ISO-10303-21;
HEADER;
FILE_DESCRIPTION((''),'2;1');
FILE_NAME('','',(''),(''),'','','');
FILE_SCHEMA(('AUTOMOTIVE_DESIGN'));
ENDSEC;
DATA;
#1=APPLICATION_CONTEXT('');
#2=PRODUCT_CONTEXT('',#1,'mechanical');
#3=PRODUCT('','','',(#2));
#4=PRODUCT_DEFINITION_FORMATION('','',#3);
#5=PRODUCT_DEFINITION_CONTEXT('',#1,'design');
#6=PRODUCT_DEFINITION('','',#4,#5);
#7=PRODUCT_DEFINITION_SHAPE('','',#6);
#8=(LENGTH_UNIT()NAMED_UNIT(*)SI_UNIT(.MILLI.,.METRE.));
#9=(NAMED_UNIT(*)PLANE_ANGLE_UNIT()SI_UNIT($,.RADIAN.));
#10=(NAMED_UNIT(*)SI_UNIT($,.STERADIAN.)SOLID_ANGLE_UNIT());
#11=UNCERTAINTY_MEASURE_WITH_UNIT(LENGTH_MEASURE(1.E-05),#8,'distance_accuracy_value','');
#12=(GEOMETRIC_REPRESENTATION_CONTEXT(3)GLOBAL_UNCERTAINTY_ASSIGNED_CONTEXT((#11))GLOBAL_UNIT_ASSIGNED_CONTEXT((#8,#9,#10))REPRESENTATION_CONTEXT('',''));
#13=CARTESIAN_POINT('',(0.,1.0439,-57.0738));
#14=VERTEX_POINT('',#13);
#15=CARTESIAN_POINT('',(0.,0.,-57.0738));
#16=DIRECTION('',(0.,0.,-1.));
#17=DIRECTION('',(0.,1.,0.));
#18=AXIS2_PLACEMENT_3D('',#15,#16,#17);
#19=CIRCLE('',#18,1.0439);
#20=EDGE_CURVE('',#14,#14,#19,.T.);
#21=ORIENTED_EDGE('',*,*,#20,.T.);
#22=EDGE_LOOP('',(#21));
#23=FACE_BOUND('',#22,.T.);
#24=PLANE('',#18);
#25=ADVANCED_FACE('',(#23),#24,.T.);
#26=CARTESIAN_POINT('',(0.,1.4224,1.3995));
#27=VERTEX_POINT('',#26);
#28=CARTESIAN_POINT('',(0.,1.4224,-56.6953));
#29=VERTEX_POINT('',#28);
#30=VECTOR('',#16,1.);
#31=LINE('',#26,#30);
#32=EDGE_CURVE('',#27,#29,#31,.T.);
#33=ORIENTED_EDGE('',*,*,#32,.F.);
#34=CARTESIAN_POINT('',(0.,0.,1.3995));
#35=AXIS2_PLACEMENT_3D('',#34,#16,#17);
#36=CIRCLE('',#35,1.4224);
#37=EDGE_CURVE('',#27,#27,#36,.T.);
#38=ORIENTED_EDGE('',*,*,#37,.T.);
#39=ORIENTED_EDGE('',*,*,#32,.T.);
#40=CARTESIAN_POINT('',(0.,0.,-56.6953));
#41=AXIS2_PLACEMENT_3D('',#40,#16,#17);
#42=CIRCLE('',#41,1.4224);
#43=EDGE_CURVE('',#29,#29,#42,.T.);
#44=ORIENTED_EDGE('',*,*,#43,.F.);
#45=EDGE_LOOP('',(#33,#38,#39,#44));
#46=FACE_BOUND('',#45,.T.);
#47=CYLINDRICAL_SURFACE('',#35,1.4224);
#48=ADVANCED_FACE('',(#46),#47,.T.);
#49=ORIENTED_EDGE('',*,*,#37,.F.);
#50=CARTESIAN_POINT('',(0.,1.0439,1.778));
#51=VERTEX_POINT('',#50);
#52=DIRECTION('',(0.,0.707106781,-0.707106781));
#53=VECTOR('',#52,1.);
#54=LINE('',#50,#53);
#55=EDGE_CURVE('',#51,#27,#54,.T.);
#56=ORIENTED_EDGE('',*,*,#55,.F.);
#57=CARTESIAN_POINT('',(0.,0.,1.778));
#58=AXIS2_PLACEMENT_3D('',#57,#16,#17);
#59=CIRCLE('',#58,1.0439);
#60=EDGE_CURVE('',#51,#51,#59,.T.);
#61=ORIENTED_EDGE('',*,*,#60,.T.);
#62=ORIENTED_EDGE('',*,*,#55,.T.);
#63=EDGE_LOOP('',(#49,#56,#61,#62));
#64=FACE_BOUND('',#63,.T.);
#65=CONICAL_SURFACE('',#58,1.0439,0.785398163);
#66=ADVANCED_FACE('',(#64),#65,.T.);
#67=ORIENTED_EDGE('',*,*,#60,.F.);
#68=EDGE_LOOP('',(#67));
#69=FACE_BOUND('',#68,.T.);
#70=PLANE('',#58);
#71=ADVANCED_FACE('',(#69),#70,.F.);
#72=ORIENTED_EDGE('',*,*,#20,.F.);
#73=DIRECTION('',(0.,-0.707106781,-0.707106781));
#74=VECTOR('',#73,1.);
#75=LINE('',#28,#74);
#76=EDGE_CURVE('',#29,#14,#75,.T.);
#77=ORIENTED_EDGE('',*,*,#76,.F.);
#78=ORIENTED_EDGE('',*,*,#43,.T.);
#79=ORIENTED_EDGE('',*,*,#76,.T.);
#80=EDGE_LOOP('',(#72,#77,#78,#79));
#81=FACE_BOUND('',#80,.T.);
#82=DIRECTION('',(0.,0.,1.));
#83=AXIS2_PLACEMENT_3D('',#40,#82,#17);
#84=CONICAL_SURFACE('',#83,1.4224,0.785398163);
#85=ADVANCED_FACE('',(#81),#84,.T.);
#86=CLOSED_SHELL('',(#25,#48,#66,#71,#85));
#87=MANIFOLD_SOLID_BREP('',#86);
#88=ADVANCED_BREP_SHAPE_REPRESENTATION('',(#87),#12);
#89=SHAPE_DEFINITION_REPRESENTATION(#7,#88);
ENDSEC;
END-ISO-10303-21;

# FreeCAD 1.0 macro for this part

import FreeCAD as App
import Part
import Sketcher
from FreeCAD import Vector
Q = App.Units.Quantity


def add_polygon(sketch, points):
    """Adds a closed chain of lines whose ends are joined by coincident constraints."""
    first, n = sketch.GeometryCount, len(points)
    for a, b in zip(points, points[1:] + points[:1]):
        sketch.addGeometry(Part.LineSegment(App.Vector(*a, 0), App.Vector(*b, 0)), False)
    for i in range(n):
        sketch.addConstraint(Sketcher.Constraint("Coincident", first + i, 2, first + (i + 1) % n, 1))

doc = App.newDocument("Part")
params = doc.addObject("Spreadsheet::Sheet", "Params")
for row, (alias, value) in enumerate([
    ("sketch1_height", "2.317 in"),
    ("revolution_angle", "360 deg"),
], start=1):
    params.set(f"A{row}", alias)
    params.set(f"B{row}", "=" + value)
    params.setAlias(f"B{row}", alias)

body = doc.addObject("PartDesign::Body", "Body")

# Sketch on YZ plane
sketch1 = doc.addObject("Sketcher::SketchObject", "Sketch")
body.addObject(sketch1)
sketch1.AttachmentSupport = (doc.YZ_Plane, [""])
sketch1.MapMode = "FlatFace"
add_polygon(sketch1, [(0, 1.8), (0, -57.1), (1, -57.1), (1.4, -56.7), (1.4, 1.4), (1, 1.8)])  # lines 0-5
sketch1.addConstraint(Sketcher.Constraint("Vertical", 0))
sketch1.addConstraint(Sketcher.Constraint("Horizontal", 1))
sketch1.addConstraint(Sketcher.Constraint("Vertical", 3))
sketch1.addConstraint(Sketcher.Constraint("Horizontal", 5))
sketch1.addConstraint(Sketcher.Constraint("PointOnObject", 0, 2, -2))
sketch1.addConstraint(Sketcher.Constraint("Perpendicular", 2, 4))
sketch1.addConstraint(Sketcher.Constraint("Vertical", 1, 2, 4, 2))
sketch1.addConstraint(Sketcher.Constraint("Equal", 2, 4))
sketch1.addConstraint(Sketcher.Constraint("DistanceY", 0, 2, 0, 1, Q("2.317 in")))
sketch1.addConstraint(Sketcher.Constraint("DistanceY", -1, 1, 4, 2, Q("0.07 in")))
sketch1.addConstraint(Sketcher.Constraint("DistanceX", 1, 1, 1, 2, Q("0.0411 in")))
sketch1.addConstraint(Sketcher.Constraint("DistanceY", 3, 1, 3, 2, Q("2.2872 in")))
sketch1.setExpression("Constraints[14]", "Params.sketch1_height")
revolution = doc.addObject("PartDesign::Revolution", "Revolution")
body.addObject(revolution)
revolution.Profile = sketch1
revolution.ReferenceAxis = (sketch1, ["V_Axis"])
revolution.setExpression("Angle", "Params.revolution_angle")

doc.recompute()
